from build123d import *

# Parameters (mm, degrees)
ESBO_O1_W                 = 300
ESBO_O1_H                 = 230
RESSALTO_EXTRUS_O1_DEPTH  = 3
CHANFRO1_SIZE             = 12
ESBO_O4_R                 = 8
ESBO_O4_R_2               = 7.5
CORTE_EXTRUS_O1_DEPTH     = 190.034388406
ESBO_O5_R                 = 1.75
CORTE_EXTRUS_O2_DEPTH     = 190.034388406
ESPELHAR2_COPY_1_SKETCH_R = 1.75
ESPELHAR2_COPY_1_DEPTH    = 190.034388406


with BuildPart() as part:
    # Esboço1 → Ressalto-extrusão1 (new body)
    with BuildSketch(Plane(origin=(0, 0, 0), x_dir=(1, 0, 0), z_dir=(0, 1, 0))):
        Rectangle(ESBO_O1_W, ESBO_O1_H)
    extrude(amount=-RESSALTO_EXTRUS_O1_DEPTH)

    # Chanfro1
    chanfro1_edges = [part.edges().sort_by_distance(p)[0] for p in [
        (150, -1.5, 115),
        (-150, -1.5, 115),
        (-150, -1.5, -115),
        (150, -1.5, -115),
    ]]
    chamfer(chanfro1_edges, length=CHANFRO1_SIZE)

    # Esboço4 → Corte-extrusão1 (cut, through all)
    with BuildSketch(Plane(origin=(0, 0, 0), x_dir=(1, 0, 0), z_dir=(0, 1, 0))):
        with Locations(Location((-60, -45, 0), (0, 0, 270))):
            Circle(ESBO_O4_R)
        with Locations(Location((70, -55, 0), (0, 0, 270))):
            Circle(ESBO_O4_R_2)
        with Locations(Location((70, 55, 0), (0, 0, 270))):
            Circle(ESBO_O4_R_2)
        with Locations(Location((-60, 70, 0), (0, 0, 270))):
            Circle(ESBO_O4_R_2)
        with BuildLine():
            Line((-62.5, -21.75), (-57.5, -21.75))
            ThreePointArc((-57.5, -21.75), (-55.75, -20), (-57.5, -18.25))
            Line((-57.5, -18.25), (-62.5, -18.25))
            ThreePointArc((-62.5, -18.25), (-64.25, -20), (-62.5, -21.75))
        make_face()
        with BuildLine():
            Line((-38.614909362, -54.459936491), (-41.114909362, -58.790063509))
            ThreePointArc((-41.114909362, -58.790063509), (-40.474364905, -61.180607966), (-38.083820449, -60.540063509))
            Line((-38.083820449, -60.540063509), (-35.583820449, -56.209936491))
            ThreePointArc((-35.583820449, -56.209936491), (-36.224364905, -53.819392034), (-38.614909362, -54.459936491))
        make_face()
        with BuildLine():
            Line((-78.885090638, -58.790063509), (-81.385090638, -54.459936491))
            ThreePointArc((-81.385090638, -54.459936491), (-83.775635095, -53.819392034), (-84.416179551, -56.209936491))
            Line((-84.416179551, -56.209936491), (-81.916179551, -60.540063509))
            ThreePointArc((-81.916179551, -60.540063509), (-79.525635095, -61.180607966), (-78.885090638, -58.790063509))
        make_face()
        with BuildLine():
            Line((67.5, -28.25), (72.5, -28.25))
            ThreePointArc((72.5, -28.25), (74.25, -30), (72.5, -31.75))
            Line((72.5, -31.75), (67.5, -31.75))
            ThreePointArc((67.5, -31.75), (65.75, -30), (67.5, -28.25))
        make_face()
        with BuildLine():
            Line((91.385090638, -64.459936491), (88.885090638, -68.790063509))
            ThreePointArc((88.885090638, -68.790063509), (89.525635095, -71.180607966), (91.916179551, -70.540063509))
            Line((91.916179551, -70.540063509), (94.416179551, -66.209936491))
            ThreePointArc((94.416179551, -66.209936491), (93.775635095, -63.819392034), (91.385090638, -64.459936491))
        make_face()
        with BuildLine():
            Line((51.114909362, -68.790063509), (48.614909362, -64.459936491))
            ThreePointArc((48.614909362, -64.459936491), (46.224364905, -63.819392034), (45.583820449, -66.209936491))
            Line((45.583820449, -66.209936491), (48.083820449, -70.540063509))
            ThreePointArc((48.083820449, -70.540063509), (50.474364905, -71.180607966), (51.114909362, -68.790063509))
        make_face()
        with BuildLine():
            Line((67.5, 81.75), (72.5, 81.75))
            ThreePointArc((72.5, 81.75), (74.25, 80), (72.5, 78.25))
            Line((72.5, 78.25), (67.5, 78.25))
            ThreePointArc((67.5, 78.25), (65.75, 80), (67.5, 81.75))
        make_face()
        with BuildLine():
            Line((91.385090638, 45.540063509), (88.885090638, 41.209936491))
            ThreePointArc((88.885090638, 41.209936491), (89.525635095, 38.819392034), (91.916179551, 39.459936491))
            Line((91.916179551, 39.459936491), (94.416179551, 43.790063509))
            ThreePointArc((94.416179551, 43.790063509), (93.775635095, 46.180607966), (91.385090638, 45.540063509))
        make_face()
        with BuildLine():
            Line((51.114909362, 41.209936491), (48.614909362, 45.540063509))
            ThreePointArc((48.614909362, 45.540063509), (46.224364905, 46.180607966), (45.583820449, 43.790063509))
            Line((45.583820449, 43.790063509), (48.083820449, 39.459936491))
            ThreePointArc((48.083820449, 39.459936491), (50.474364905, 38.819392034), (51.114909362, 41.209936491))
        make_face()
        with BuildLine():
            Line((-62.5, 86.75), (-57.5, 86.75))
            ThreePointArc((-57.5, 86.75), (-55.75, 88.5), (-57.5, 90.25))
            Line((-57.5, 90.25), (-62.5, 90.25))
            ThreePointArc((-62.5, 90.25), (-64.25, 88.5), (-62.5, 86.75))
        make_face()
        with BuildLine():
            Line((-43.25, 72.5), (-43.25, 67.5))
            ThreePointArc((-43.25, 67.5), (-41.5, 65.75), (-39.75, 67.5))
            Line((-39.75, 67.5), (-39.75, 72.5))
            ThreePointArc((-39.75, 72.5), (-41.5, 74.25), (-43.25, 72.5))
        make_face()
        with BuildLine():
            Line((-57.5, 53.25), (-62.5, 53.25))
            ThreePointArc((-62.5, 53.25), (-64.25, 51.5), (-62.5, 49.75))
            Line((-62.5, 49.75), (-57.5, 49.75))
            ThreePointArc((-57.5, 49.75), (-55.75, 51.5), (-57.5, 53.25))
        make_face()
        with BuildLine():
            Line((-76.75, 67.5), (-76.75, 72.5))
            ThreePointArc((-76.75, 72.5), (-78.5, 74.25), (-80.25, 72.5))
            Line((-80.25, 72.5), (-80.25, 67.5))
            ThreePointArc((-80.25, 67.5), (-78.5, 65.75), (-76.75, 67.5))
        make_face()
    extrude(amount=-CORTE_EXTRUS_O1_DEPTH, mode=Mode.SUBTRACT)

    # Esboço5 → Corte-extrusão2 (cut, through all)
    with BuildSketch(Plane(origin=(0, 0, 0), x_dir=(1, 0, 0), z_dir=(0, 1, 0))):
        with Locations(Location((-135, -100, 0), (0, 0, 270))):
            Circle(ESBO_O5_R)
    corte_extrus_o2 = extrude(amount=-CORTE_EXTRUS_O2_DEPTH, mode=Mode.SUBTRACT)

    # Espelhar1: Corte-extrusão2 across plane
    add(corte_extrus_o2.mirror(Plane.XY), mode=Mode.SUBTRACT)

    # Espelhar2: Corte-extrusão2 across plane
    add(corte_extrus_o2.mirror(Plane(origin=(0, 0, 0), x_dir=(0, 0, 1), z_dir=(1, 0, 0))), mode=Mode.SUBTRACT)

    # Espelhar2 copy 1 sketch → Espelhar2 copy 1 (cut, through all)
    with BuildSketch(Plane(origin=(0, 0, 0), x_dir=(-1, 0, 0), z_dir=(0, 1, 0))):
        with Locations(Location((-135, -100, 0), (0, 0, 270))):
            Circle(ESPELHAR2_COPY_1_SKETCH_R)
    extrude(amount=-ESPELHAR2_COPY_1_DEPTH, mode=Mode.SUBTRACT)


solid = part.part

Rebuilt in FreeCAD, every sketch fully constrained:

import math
import FreeCAD as App
import Part
import Sketcher
Q = App.Units.Quantity


def edges_at(feature, points):
    """Names of the edges that pass closest to the given points."""
    edges = feature.Shape.Edges
    near = lambda p: min(range(len(edges)), key=lambda i: edges[i].distToShape(Part.Vertex(*p))[0])
    return sorted({f"Edge{near(p) + 1}" for p in points})


def add_polygon(sketch, points):
    """Adds a closed chain of lines whose ends are joined by coincident constraints."""
    first, n = sketch.GeometryCount, len(points)
    for a, b in zip(points, points[1:] + points[:1]):
        sketch.addGeometry(Part.LineSegment(App.Vector(*a, 0), App.Vector(*b, 0)), False)
    for i in range(n):
        sketch.addConstraint(Sketcher.Constraint("Coincident", first + i, 2, first + (i + 1) % n, 1))

doc = App.newDocument("Part")
params = doc.addObject("Spreadsheet::Sheet", "Params")
for row, (alias, value) in enumerate([
    ("sketch1_width", "300 mm"),
    ("sketch1_height", "230 mm"),
    ("pad1_length", "3 mm"),
    ("chamfer_size", "12 mm"),
    ("sketch2_diameter", "16 mm"),
    ("sketch2_diameter2", "15 mm"),
    ("sketch2_width", "5 mm"),
    ("sketch2_radius", "1.75 mm"),
    ("sketch2_length", "5 mm"),
    ("sketch3_diameter", "3.5 mm"),
    ("sketch4_diameter", "3.5 mm"),
], start=1):
    params.set(f"A{row}", alias)
    params.set(f"B{row}", "=" + value)
    params.setAlias(f"B{row}", alias)

body = doc.addObject("PartDesign::Body", "Body")

# Sketch on XZ plane
sketch1 = doc.addObject("Sketcher::SketchObject", "Sketch")
body.addObject(sketch1)
sketch1.AttachmentSupport = (doc.XZ_Plane, [""])
sketch1.MapMode = "FlatFace"
add_polygon(sketch1, [(-150, -115), (-150, 115), (150, 115), (150, -115)])  # lines 0-3
sketch1.addConstraint(Sketcher.Constraint("Vertical", 0))
sketch1.addConstraint(Sketcher.Constraint("Horizontal", 1))
sketch1.addConstraint(Sketcher.Constraint("Vertical", 2))
sketch1.addConstraint(Sketcher.Constraint("Horizontal", 3))
sketch1.addConstraint(Sketcher.Constraint("Symmetric", 0, 2, 2, 2, -1, 1))
sketch1.addConstraint(Sketcher.Constraint("DistanceX", 1, 1, 1, 2, Q("300 mm")))
sketch1.addConstraint(Sketcher.Constraint("DistanceY", 0, 1, 0, 2, Q("230 mm")))
sketch1.setExpression("Constraints[9]", "Params.sketch1_width")
sketch1.setExpression("Constraints[10]", "Params.sketch1_height")
pad1 = doc.addObject("PartDesign::Pad", "Pad")
body.addObject(pad1)
pad1.Profile = sketch1
pad1.setExpression("Length", "Params.pad1_length")
doc.recompute()

chamfer = doc.addObject("PartDesign::Chamfer", "Chamfer")
body.addObject(chamfer)
chamfer.Base = (pad1, edges_at(pad1, [
    (150, -1.5, 115),
    (-150, -1.5, 115),
    (-150, -1.5, -115),
    (150, -1.5, -115),
]))
chamfer.setExpression("Size", "Params.chamfer_size")

# Sketch on XZ plane
sketch2 = doc.addObject("Sketcher::SketchObject", "Sketch001")
body.addObject(sketch2)
sketch2.AttachmentSupport = (doc.XZ_Plane, [""])
sketch2.MapMode = "FlatFace"
sketch2.addGeometry(Part.Circle(App.Vector(-60, 45, 0), App.Vector(0, 0, 1), 8), False)
sketch2.addGeometry(Part.Circle(App.Vector(70, 55, 0), App.Vector(0, 0, 1), 7.5), False)
sketch2.addGeometry(Part.Circle(App.Vector(70, -55, 0), App.Vector(0, 0, 1), 7.5), False)
sketch2.addGeometry(Part.Circle(App.Vector(-60, -70, 0), App.Vector(0, 0, 1), 7.5), False)
sketch2.addGeometry(Part.LineSegment(App.Vector(-62.5, 21.8, 0), App.Vector(-57.5, 21.8, 0)), False)
sketch2.addGeometry(Part.ArcOfCircle(Part.Circle(App.Vector(-57.5, 20, 0), App.Vector(0, 0, 1), 1.8), math.radians(-90), math.radians(90)), False)
sketch2.addGeometry(Part.LineSegment(App.Vector(-57.5, 18.2, 0), App.Vector(-62.5, 18.2, 0)), False)
sketch2.addGeometry(Part.ArcOfCircle(Part.Circle(App.Vector(-62.5, 20, 0), App.Vector(0, 0, 1), 1.8), math.radians(90), math.radians(270)), False)
sketch2.addGeometry(Part.LineSegment(App.Vector(-38.6, 54.5, 0), App.Vector(-41.1, 58.8, 0)), False)
sketch2.addGeometry(Part.ArcOfCircle(Part.Circle(App.Vector(-39.6, 59.7, 0), App.Vector(0, 0, 1), 1.8), math.radians(30), math.radians(210)), False)
sketch2.addGeometry(Part.LineSegment(App.Vector(-38.1, 60.5, 0), App.Vector(-35.6, 56.2, 0)), False)
sketch2.addGeometry(Part.ArcOfCircle(Part.Circle(App.Vector(-37.1, 55.3, 0), App.Vector(0, 0, 1), 1.8), math.radians(-150), math.radians(30)), False)
sketch2.addGeometry(Part.LineSegment(App.Vector(-78.9, 58.8, 0), App.Vector(-81.4, 54.5, 0)), False)
sketch2.addGeometry(Part.ArcOfCircle(Part.Circle(App.Vector(-82.9, 55.3, 0), App.Vector(0, 0, 1), 1.8), math.radians(150), math.radians(330)), False)
sketch2.addGeometry(Part.LineSegment(App.Vector(-84.4, 56.2, 0), App.Vector(-81.9, 60.5, 0)), False)
sketch2.addGeometry(Part.ArcOfCircle(Part.Circle(App.Vector(-80.4, 59.7, 0), App.Vector(0, 0, 1), 1.8), math.radians(-30), math.radians(150)), False)
sketch2.addGeometry(Part.LineSegment(App.Vector(72.5, 28.2, 0), App.Vector(67.5, 28.2, 0)), False)
sketch2.addGeometry(Part.ArcOfCircle(Part.Circle(App.Vector(67.5, 30, 0), App.Vector(0, 0, 1), 1.8), math.radians(90), math.radians(270)), False)
sketch2.addGeometry(Part.LineSegment(App.Vector(67.5, 31.8, 0), App.Vector(72.5, 31.8, 0)), False)
sketch2.addGeometry(Part.ArcOfCircle(Part.Circle(App.Vector(72.5, 30, 0), App.Vector(0, 0, 1), 1.8), math.radians(-90), math.radians(90)), False)
sketch2.addGeometry(Part.LineSegment(App.Vector(91.4, 64.5, 0), App.Vector(88.9, 68.8, 0)), False)
sketch2.addGeometry(Part.ArcOfCircle(Part.Circle(App.Vector(90.4, 69.7, 0), App.Vector(0, 0, 1), 1.8), math.radians(30), math.radians(210)), False)
sketch2.addGeometry(Part.LineSegment(App.Vector(91.9, 70.5, 0), App.Vector(94.4, 66.2, 0)), False)
sketch2.addGeometry(Part.ArcOfCircle(Part.Circle(App.Vector(92.9, 65.3, 0), App.Vector(0, 0, 1), 1.8), math.radians(-150), math.radians(30)), False)
sketch2.addGeometry(Part.LineSegment(App.Vector(51.1, 68.8, 0), App.Vector(48.6, 64.5, 0)), False)
sketch2.addGeometry(Part.ArcOfCircle(Part.Circle(App.Vector(47.1, 65.3, 0), App.Vector(0, 0, 1), 1.8), math.radians(150), math.radians(330)), False)
sketch2.addGeometry(Part.LineSegment(App.Vector(45.6, 66.2, 0), App.Vector(48.1, 70.5, 0)), False)
sketch2.addGeometry(Part.ArcOfCircle(Part.Circle(App.Vector(49.6, 69.7, 0), App.Vector(0, 0, 1), 1.8), math.radians(-30), math.radians(150)), False)
sketch2.addGeometry(Part.LineSegment(App.Vector(72.5, -81.8, 0), App.Vector(67.5, -81.8, 0)), False)
sketch2.addGeometry(Part.ArcOfCircle(Part.Circle(App.Vector(67.5, -80, 0), App.Vector(0, 0, 1), 1.8), math.radians(90), math.radians(270)), False)
sketch2.addGeometry(Part.LineSegment(App.Vector(67.5, -78.2, 0), App.Vector(72.5, -78.2, 0)), False)
sketch2.addGeometry(Part.ArcOfCircle(Part.Circle(App.Vector(72.5, -80, 0), App.Vector(0, 0, 1), 1.8), math.radians(-90), math.radians(90)), False)
sketch2.addGeometry(Part.LineSegment(App.Vector(91.4, -45.5, 0), App.Vector(88.9, -41.2, 0)), False)
sketch2.addGeometry(Part.ArcOfCircle(Part.Circle(App.Vector(90.4, -40.3, 0), App.Vector(0, 0, 1), 1.8), math.radians(30), math.radians(210)), False)
sketch2.addGeometry(Part.LineSegment(App.Vector(91.9, -39.5, 0), App.Vector(94.4, -43.8, 0)), False)
sketch2.addGeometry(Part.ArcOfCircle(Part.Circle(App.Vector(92.9, -44.7, 0), App.Vector(0, 0, 1), 1.8), math.radians(-150), math.radians(30)), False)
sketch2.addGeometry(Part.LineSegment(App.Vector(51.1, -41.2, 0), App.Vector(48.6, -45.5, 0)), False)
sketch2.addGeometry(Part.ArcOfCircle(Part.Circle(App.Vector(47.1, -44.7, 0), App.Vector(0, 0, 1), 1.8), math.radians(150), math.radians(330)), False)
sketch2.addGeometry(Part.LineSegment(App.Vector(45.6, -43.8, 0), App.Vector(48.1, -39.5, 0)), False)
sketch2.addGeometry(Part.ArcOfCircle(Part.Circle(App.Vector(49.6, -40.3, 0), App.Vector(0, 0, 1), 1.8), math.radians(-30), math.radians(150)), False)
sketch2.addGeometry(Part.LineSegment(App.Vector(-62.5, -86.8, 0), App.Vector(-57.5, -86.8, 0)), False)
sketch2.addGeometry(Part.ArcOfCircle(Part.Circle(App.Vector(-57.5, -88.5, 0), App.Vector(0, 0, 1), 1.8), math.radians(-90), math.radians(90)), False)
sketch2.addGeometry(Part.LineSegment(App.Vector(-57.5, -90.2, 0), App.Vector(-62.5, -90.2, 0)), False)
sketch2.addGeometry(Part.ArcOfCircle(Part.Circle(App.Vector(-62.5, -88.5, 0), App.Vector(0, 0, 1), 1.8), math.radians(90), math.radians(270)), False)
sketch2.addGeometry(Part.LineSegment(App.Vector(-43.2, -72.5, 0), App.Vector(-43.2, -67.5, 0)), False)
sketch2.addGeometry(Part.ArcOfCircle(Part.Circle(App.Vector(-41.5, -67.5, 0), App.Vector(0, 0, 1), 1.8), math.radians(0), math.radians(180)), False)
sketch2.addGeometry(Part.LineSegment(App.Vector(-39.8, -67.5, 0), App.Vector(-39.8, -72.5, 0)), False)
sketch2.addGeometry(Part.ArcOfCircle(Part.Circle(App.Vector(-41.5, -72.5, 0), App.Vector(0, 0, 1), 1.8), math.radians(180), math.radians(360)), False)
sketch2.addGeometry(Part.LineSegment(App.Vector(-57.5, -53.2, 0), App.Vector(-62.5, -53.2, 0)), False)
sketch2.addGeometry(Part.ArcOfCircle(Part.Circle(App.Vector(-62.5, -51.5, 0), App.Vector(0, 0, 1), 1.8), math.radians(90), math.radians(270)), False)
sketch2.addGeometry(Part.LineSegment(App.Vector(-62.5, -49.8, 0), App.Vector(-57.5, -49.8, 0)), False)
sketch2.addGeometry(Part.ArcOfCircle(Part.Circle(App.Vector(-57.5, -51.5, 0), App.Vector(0, 0, 1), 1.8), math.radians(-90), math.radians(90)), False)
sketch2.addGeometry(Part.LineSegment(App.Vector(-76.8, -67.5, 0), App.Vector(-76.8, -72.5, 0)), False)
sketch2.addGeometry(Part.ArcOfCircle(Part.Circle(App.Vector(-78.5, -72.5, 0), App.Vector(0, 0, 1), 1.8), math.radians(180), math.radians(360)), False)
sketch2.addGeometry(Part.LineSegment(App.Vector(-80.2, -72.5, 0), App.Vector(-80.2, -67.5, 0)), False)
sketch2.addGeometry(Part.ArcOfCircle(Part.Circle(App.Vector(-78.5, -67.5, 0), App.Vector(0, 0, 1), 1.8), math.radians(0), math.radians(180)), False)
sketch2.addConstraint(Sketcher.Constraint("Tangent", 4, 2, 5, 2))
sketch2.addConstraint(Sketcher.Constraint("Tangent", 5, 1, 6, 1))
sketch2.addConstraint(Sketcher.Constraint("Tangent", 6, 2, 7, 2))
sketch2.addConstraint(Sketcher.Constraint("Tangent", 7, 1, 4, 1))
sketch2.addConstraint(Sketcher.Constraint("Tangent", 8, 2, 9, 2))
sketch2.addConstraint(Sketcher.Constraint("Tangent", 9, 1, 10, 1))
sketch2.addConstraint(Sketcher.Constraint("Tangent", 10, 2, 11, 2))
sketch2.addConstraint(Sketcher.Constraint("Tangent", 11, 1, 8, 1))
sketch2.addConstraint(Sketcher.Constraint("Tangent", 12, 2, 13, 2))
sketch2.addConstraint(Sketcher.Constraint("Tangent", 13, 1, 14, 1))
sketch2.addConstraint(Sketcher.Constraint("Tangent", 14, 2, 15, 2))
sketch2.addConstraint(Sketcher.Constraint("Tangent", 15, 1, 12, 1))
sketch2.addConstraint(Sketcher.Constraint("Tangent", 16, 2, 17, 2))
sketch2.addConstraint(Sketcher.Constraint("Tangent", 17, 1, 18, 1))
sketch2.addConstraint(Sketcher.Constraint("Tangent", 18, 2, 19, 2))
sketch2.addConstraint(Sketcher.Constraint("Tangent", 19, 1, 16, 1))
sketch2.addConstraint(Sketcher.Constraint("Tangent", 20, 2, 21, 2))
sketch2.addConstraint(Sketcher.Constraint("Tangent", 21, 1, 22, 1))
sketch2.addConstraint(Sketcher.Constraint("Tangent", 22, 2, 23, 2))
sketch2.addConstraint(Sketcher.Constraint("Tangent", 23, 1, 20, 1))
sketch2.addConstraint(Sketcher.Constraint("Tangent", 24, 2, 25, 2))
sketch2.addConstraint(Sketcher.Constraint("Tangent", 25, 1, 26, 1))
sketch2.addConstraint(Sketcher.Constraint("Tangent", 26, 2, 27, 2))
sketch2.addConstraint(Sketcher.Constraint("Tangent", 27, 1, 24, 1))
sketch2.addConstraint(Sketcher.Constraint("Tangent", 28, 2, 29, 2))
sketch2.addConstraint(Sketcher.Constraint("Tangent", 29, 1, 30, 1))
sketch2.addConstraint(Sketcher.Constraint("Tangent", 30, 2, 31, 2))
sketch2.addConstraint(Sketcher.Constraint("Tangent", 31, 1, 28, 1))
sketch2.addConstraint(Sketcher.Constraint("Tangent", 32, 2, 33, 2))
sketch2.addConstraint(Sketcher.Constraint("Tangent", 33, 1, 34, 1))
sketch2.addConstraint(Sketcher.Constraint("Tangent", 34, 2, 35, 2))
sketch2.addConstraint(Sketcher.Constraint("Tangent", 35, 1, 32, 1))
sketch2.addConstraint(Sketcher.Constraint("Tangent", 36, 2, 37, 2))
sketch2.addConstraint(Sketcher.Constraint("Tangent", 37, 1, 38, 1))
sketch2.addConstraint(Sketcher.Constraint("Tangent", 38, 2, 39, 2))
sketch2.addConstraint(Sketcher.Constraint("Tangent", 39, 1, 36, 1))
sketch2.addConstraint(Sketcher.Constraint("Tangent", 40, 2, 41, 2))
sketch2.addConstraint(Sketcher.Constraint("Tangent", 41, 1, 42, 1))
sketch2.addConstraint(Sketcher.Constraint("Tangent", 42, 2, 43, 2))
sketch2.addConstraint(Sketcher.Constraint("Tangent", 43, 1, 40, 1))
sketch2.addConstraint(Sketcher.Constraint("Tangent", 44, 2, 45, 2))
sketch2.addConstraint(Sketcher.Constraint("Tangent", 45, 1, 46, 1))
sketch2.addConstraint(Sketcher.Constraint("Tangent", 46, 2, 47, 2))
sketch2.addConstraint(Sketcher.Constraint("Tangent", 47, 1, 44, 1))
sketch2.addConstraint(Sketcher.Constraint("Tangent", 48, 2, 49, 2))
sketch2.addConstraint(Sketcher.Constraint("Tangent", 49, 1, 50, 1))
sketch2.addConstraint(Sketcher.Constraint("Tangent", 50, 2, 51, 2))
sketch2.addConstraint(Sketcher.Constraint("Tangent", 51, 1, 48, 1))
sketch2.addConstraint(Sketcher.Constraint("Tangent", 52, 2, 53, 2))
sketch2.addConstraint(Sketcher.Constraint("Tangent", 53, 1, 54, 1))
sketch2.addConstraint(Sketcher.Constraint("Tangent", 54, 2, 55, 2))
sketch2.addConstraint(Sketcher.Constraint("Tangent", 55, 1, 52, 1))
sketch2.addConstraint(Sketcher.Constraint("Horizontal", 4))
sketch2.addConstraint(Sketcher.Constraint("Horizontal", 6))
sketch2.addConstraint(Sketcher.Constraint("Horizontal", 16))
sketch2.addConstraint(Sketcher.Constraint("Horizontal", 18))
sketch2.addConstraint(Sketcher.Constraint("Horizontal", 28))
sketch2.addConstraint(Sketcher.Constraint("Horizontal", 30))
sketch2.addConstraint(Sketcher.Constraint("Horizontal", 40))
sketch2.addConstraint(Sketcher.Constraint("Horizontal", 42))
sketch2.addConstraint(Sketcher.Constraint("Vertical", 44))
sketch2.addConstraint(Sketcher.Constraint("Vertical", 46))
sketch2.addConstraint(Sketcher.Constraint("Horizontal", 48))
sketch2.addConstraint(Sketcher.Constraint("Horizontal", 50))
sketch2.addConstraint(Sketcher.Constraint("Vertical", 52))
sketch2.addConstraint(Sketcher.Constraint("Vertical", 54))
sketch2.addConstraint(Sketcher.Constraint("Equal", 1, 2))
sketch2.addConstraint(Sketcher.Constraint("Equal", 2, 3))
sketch2.addConstraint(Sketcher.Constraint("Equal", 7, 9))
sketch2.addConstraint(Sketcher.Constraint("Equal", 9, 11))
sketch2.addConstraint(Sketcher.Constraint("Equal", 11, 13))
sketch2.addConstraint(Sketcher.Constraint("Equal", 13, 15))
sketch2.addConstraint(Sketcher.Constraint("Equal", 15, 17))
sketch2.addConstraint(Sketcher.Constraint("Equal", 19, 21))
sketch2.addConstraint(Sketcher.Constraint("Equal", 21, 23))
sketch2.addConstraint(Sketcher.Constraint("Equal", 23, 25))
sketch2.addConstraint(Sketcher.Constraint("Equal", 25, 27))
sketch2.addConstraint(Sketcher.Constraint("Equal", 27, 29))
sketch2.addConstraint(Sketcher.Constraint("Equal", 31, 33))
sketch2.addConstraint(Sketcher.Constraint("Equal", 33, 35))
sketch2.addConstraint(Sketcher.Constraint("Equal", 35, 37))
sketch2.addConstraint(Sketcher.Constraint("Equal", 37, 39))
sketch2.addConstraint(Sketcher.Constraint("Equal", 39, 41))
sketch2.addConstraint(Sketcher.Constraint("Equal", 43, 45))
sketch2.addConstraint(Sketcher.Constraint("Equal", 47, 49))
sketch2.addConstraint(Sketcher.Constraint("Equal", 51, 53))
sketch2.addConstraint(Sketcher.Constraint("Symmetric", 1, 3, 2, 3, -1))
sketch2.addConstraint(Sketcher.Constraint("Parallel", 10, 20))
sketch2.addConstraint(Sketcher.Constraint("Parallel", 14, 24))
sketch2.addConstraint(Sketcher.Constraint("Parallel", 22, 32))
sketch2.addConstraint(Sketcher.Constraint("Parallel", 26, 36))
sketch2.addConstraint(Sketcher.Constraint("Horizontal", 11, 3, 13, 3))
sketch2.addConstraint(Sketcher.Constraint("Horizontal", 9, 3, 15, 3))
sketch2.addConstraint(Sketcher.Constraint("Horizontal", 23, 3, 25, 3))
sketch2.addConstraint(Sketcher.Constraint("Horizontal", 21, 3, 27, 3))
sketch2.addConstraint(Sketcher.Constraint("Horizontal", 35, 3, 37, 3))
sketch2.addConstraint(Sketcher.Constraint("Horizontal", 33, 3, 39, 3))
sketch2.addConstraint(Sketcher.Constraint("Horizontal", 47, 3, 53, 3))
sketch2.addConstraint(Sketcher.Constraint("Horizontal", 45, 3, 55, 3))
sketch2.addConstraint(Sketcher.Constraint("Horizontal", 11, 1, 12, 2))
sketch2.addConstraint(Sketcher.Constraint("Vertical", 0, 3, 3, 3))
sketch2.addConstraint(Sketcher.Constraint("Vertical", 17, 3, 29, 3))
sketch2.addConstraint(Sketcher.Constraint("Vertical", 19, 3, 31, 3))
sketch2.addConstraint(Sketcher.Constraint("Vertical", 21, 3, 33, 3))
sketch2.addConstraint(Sketcher.Constraint("Vertical", 23, 3, 35, 3))
sketch2.addConstraint(Sketcher.Constraint("Vertical", 25, 3, 37, 3))
sketch2.addConstraint(Sketcher.Constraint("Vertical", 5, 3, 41, 3))
sketch2.addConstraint(Sketcher.Constraint("Vertical", 7, 3, 43, 3))
sketch2.addConstraint(Sketcher.Constraint("Vertical", 43, 3, 49, 3))
sketch2.addConstraint(Sketcher.Constraint("Vertical", 41, 3, 51, 3))
sketch2.addConstraint(Sketcher.Constraint("Equal", 6, 16))
sketch2.addConstraint(Sketcher.Constraint("Equal", 50, 44))
sketch2.addConstraint(Sketcher.Constraint("Equal", 14, 20))
sketch2.addConstraint(Sketcher.Constraint("Diameter", 0, Q("16 mm")))
sketch2.addConstraint(Sketcher.Constraint("Diameter", 1, Q("15 mm")))
sketch2.addConstraint(Sketcher.Constraint("DistanceX", 4, 1, 4, 2, Q("5 mm")))
sketch2.addConstraint(Sketcher.Constraint("Angle", 8, Q("120 deg")))
sketch2.addConstraint(Sketcher.Constraint("Radius", 5, Q("1.75 mm")))
sketch2.addConstraint(Sketcher.Constraint("Distance", 8, Q("5 mm")))
sketch2.addConstraint(Sketcher.Constraint("DistanceX", 0, 3, -1, 1, Q("60 mm")))
sketch2.addConstraint(Sketcher.Constraint("DistanceY", -1, 1, 0, 3, Q("45 mm")))
sketch2.addConstraint(Sketcher.Constraint("DistanceX", -1, 1, 1, 3, Q("70 mm")))
sketch2.addConstraint(Sketcher.Constraint("DistanceY", -1, 1, 1, 3, Q("55 mm")))
sketch2.addConstraint(Sketcher.Constraint("DistanceY", 3, 3, -1, 1, Q("70 mm")))
sketch2.addConstraint(Sketcher.Constraint("DistanceY", -1, 1, 5, 3, Q("20 mm")))
sketch2.addConstraint(Sketcher.Constraint("DistanceY", -1, 1, 17, 3, Q("30 mm")))
sketch2.addConstraint(Sketcher.Constraint("DistanceY", 29, 3, -1, 1, Q("80 mm")))
sketch2.addConstraint(Sketcher.Constraint("DistanceX", 5, 3, -1, 1, Q("57.5 mm")))
sketch2.addConstraint(Sketcher.Constraint("DistanceX", -1, 1, 17, 3, Q("67.5 mm")))
sketch2.addConstraint(Sketcher.Constraint("DistanceY", 41, 3, -1, 1, Q("88.5 mm")))
sketch2.addConstraint(Sketcher.Constraint("DistanceX", 45, 3, -1, 1, Q("41.5 mm")))
sketch2.addConstraint(Sketcher.Constraint("DistanceY", 45, 3, -1, 1, Q("67.5 mm")))
sketch2.addConstraint(Sketcher.Constraint("DistanceY", 49, 3, -1, 1, Q("51.5 mm")))
sketch2.addConstraint(Sketcher.Constraint("DistanceX", 53, 3, -1, 1, Q("78.5 mm")))
sketch2.addConstraint(Sketcher.Constraint("DistanceX", 8, 2, -1, 1, Q("41.114909 mm")))
sketch2.addConstraint(Sketcher.Constraint("DistanceX", 12, 2, -1, 1, Q("81.385091 mm")))
sketch2.addConstraint(Sketcher.Constraint("DistanceX", -1, 1, 20, 2, Q("88.885091 mm")))
sketch2.addConstraint(Sketcher.Constraint("DistanceX", -1, 1, 24, 2, Q("48.614909 mm")))
sketch2.addConstraint(Sketcher.Constraint("DistanceY", -1, 1, 9, 3, Q("59.665064 mm")))
sketch2.addConstraint(Sketcher.Constraint("DistanceY", -1, 1, 21, 3, Q("69.665064 mm")))
sketch2.addConstraint(Sketcher.Constraint("DistanceY", 33, 3, -1, 1, Q("40.334936 mm")))
sketch2.setExpression("Constraints[113]", "Params.sketch2_diameter")
sketch2.setExpression("Constraints[114]", "Params.sketch2_diameter2")
sketch2.setExpression("Constraints[115]", "Params.sketch2_width")
sketch2.setExpression("Constraints[117]", "Params.sketch2_radius")
sketch2.setExpression("Constraints[118]", "Params.sketch2_length")
pocket1 = doc.addObject("PartDesign::Pocket", "Pocket")
body.addObject(pocket1)
pocket1.Profile = sketch2
pocket1.Type = "ThroughAll"
pocket1.Reversed = True

# Sketch on XZ plane
sketch3 = doc.addObject("Sketcher::SketchObject", "Sketch002")
body.addObject(sketch3)
sketch3.AttachmentSupport = (doc.XZ_Plane, [""])
sketch3.MapMode = "FlatFace"
sketch3.addGeometry(Part.Circle(App.Vector(-135, 100, 0), App.Vector(0, 0, 1), 1.8), False)
sketch3.addConstraint(Sketcher.Constraint("Diameter", 0, Q("3.5 mm")))
sketch3.addConstraint(Sketcher.Constraint("DistanceX", 0, 3, -1, 1, Q("135 mm")))
sketch3.addConstraint(Sketcher.Constraint("DistanceY", -1, 1, 0, 3, Q("100 mm")))
sketch3.setExpression("Constraints[0]", "Params.sketch3_diameter")
pocket2 = doc.addObject("PartDesign::Pocket", "Pocket001")
body.addObject(pocket2)
pocket2.Profile = sketch3
pocket2.Type = "ThroughAll"
pocket2.Reversed = True
doc.recompute()

mirrored = doc.addObject("PartDesign::Mirrored", "Mirrored")
body.addObject(mirrored)
mirrored.Originals = [pocket2]
mirrored.MirrorPlane = (doc.XY_Plane, [""])
body.Tip = mirrored
doc.recompute()

mirrored2 = doc.addObject("PartDesign::Mirrored", "Mirrored001")
body.addObject(mirrored2)
mirrored2.Originals = [pocket2]
mirrored2.MirrorPlane = (doc.YZ_Plane, [""])
body.Tip = mirrored2

# Sketch on XZ plane
sketch4 = doc.addObject("Sketcher::SketchObject", "Sketch003")
body.addObject(sketch4)
sketch4.AttachmentSupport = (doc.XZ_Plane, [""])
sketch4.MapMode = "FlatFace"
sketch4.addGeometry(Part.Circle(App.Vector(135, -100, 0), App.Vector(0, 0, 1), 1.8), False)
sketch4.addConstraint(Sketcher.Constraint("Diameter", 0, Q("3.5 mm")))
sketch4.addConstraint(Sketcher.Constraint("DistanceX", -1, 1, 0, 3, Q("135 mm")))
sketch4.addConstraint(Sketcher.Constraint("DistanceY", 0, 3, -1, 1, Q("100 mm")))
sketch4.setExpression("Constraints[0]", "Params.sketch4_diameter")
pocket3 = doc.addObject("PartDesign::Pocket", "Pocket002")
body.addObject(pocket3)
pocket3.Profile = sketch4
pocket3.Type = "ThroughAll"
pocket3.Reversed = True

doc.recompute()
